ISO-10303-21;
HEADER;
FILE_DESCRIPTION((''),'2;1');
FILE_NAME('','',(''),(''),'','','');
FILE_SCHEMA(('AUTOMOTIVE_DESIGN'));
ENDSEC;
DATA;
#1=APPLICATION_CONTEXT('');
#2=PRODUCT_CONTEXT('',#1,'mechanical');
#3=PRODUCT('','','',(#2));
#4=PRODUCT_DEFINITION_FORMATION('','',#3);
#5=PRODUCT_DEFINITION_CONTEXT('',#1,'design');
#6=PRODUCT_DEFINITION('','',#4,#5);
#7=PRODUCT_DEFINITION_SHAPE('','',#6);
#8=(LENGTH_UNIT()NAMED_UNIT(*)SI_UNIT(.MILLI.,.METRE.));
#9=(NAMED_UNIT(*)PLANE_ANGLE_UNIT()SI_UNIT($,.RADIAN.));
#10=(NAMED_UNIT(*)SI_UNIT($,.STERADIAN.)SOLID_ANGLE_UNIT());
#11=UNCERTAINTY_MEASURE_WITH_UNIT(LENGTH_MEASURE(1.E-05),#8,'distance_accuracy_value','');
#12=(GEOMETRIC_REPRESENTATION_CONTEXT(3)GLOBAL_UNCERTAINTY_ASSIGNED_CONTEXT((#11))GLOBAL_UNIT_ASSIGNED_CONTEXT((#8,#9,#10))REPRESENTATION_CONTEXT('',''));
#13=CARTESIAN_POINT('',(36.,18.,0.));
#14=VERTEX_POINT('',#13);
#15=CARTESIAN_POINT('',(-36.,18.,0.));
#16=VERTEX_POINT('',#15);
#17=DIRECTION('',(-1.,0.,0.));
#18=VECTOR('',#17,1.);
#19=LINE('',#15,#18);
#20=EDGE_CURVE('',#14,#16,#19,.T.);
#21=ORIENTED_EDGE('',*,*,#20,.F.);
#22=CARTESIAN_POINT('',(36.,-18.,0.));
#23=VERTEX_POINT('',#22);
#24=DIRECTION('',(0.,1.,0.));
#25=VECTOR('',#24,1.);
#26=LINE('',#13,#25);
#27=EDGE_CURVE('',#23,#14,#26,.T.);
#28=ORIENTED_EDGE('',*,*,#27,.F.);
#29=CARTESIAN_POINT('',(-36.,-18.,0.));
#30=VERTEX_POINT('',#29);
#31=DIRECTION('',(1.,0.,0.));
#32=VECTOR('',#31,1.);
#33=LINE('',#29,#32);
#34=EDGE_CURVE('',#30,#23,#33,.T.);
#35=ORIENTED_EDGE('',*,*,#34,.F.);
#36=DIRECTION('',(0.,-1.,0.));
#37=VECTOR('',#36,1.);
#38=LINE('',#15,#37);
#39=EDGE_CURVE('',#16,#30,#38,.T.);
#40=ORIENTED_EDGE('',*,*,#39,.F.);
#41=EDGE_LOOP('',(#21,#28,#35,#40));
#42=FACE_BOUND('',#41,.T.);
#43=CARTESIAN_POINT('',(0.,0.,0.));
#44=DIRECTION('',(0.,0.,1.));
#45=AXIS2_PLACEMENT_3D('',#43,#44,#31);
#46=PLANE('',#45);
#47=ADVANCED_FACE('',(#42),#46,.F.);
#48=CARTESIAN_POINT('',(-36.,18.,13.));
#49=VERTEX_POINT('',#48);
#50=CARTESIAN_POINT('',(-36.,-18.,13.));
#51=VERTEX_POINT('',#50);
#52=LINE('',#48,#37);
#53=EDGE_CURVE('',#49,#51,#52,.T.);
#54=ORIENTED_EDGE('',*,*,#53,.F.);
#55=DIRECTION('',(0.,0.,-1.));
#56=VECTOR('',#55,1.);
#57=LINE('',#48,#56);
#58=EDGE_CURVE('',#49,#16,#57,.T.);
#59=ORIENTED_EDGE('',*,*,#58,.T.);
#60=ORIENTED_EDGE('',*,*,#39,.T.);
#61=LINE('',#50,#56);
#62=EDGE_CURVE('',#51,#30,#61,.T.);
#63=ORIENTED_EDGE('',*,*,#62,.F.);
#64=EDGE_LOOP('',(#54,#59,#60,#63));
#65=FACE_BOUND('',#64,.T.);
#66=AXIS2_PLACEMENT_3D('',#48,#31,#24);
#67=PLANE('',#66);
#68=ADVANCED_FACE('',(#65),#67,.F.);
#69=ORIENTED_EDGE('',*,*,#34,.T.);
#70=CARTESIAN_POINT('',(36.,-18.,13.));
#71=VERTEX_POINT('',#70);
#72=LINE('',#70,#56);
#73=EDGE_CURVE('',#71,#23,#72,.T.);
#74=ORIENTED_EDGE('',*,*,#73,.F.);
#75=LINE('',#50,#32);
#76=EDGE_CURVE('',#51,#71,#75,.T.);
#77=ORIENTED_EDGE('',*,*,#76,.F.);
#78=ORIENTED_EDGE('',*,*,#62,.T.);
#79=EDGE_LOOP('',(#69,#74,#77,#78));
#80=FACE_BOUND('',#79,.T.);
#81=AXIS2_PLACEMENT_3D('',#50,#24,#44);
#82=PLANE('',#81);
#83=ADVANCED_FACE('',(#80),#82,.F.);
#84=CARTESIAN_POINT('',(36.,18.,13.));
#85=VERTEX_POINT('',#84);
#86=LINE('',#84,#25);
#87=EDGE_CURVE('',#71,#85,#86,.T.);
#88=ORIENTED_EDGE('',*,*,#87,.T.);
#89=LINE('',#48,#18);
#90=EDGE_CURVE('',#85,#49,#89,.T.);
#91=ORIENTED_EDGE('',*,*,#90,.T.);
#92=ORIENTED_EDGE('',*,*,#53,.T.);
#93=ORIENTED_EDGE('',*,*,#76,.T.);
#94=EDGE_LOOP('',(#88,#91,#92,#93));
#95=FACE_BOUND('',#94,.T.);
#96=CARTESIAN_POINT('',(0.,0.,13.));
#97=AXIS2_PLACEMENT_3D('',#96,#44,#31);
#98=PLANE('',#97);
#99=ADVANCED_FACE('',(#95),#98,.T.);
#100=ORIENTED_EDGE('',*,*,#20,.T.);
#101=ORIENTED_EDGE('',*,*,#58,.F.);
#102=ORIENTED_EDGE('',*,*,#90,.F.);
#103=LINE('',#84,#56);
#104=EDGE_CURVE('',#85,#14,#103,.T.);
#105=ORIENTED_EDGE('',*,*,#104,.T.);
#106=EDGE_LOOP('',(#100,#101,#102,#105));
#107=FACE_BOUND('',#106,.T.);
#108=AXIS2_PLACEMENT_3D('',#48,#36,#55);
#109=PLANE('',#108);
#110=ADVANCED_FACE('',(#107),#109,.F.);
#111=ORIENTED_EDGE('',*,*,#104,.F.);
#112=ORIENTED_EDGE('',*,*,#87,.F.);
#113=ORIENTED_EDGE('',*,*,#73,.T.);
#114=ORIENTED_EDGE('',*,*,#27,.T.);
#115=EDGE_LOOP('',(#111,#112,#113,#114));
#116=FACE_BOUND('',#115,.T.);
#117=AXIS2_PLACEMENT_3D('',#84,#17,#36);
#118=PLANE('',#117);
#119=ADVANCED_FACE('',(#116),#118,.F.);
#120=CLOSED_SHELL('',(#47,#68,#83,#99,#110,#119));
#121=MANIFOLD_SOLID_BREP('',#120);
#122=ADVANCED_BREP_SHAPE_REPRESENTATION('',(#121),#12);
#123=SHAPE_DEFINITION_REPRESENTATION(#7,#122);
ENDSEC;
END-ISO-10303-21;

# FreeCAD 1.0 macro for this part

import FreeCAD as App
import Part
import Sketcher
from FreeCAD import Vector
Q = App.Units.Quantity

doc = App.newDocument("Part")
body = doc.addObject("PartDesign::Body", "Body")

# Sketch on XY plane
sketch1 = body.newObject("Sketcher::SketchObject", "Sketch")
sketch1.AttachmentSupport = (doc.getObject("XY_Plane"), [""])
sketch1.MapMode = "FlatFace"
sketch1.addGeometry(Part.LineSegment(Vector(-36, 18, 0), Vector(-36, -18, 0)), False)
sketch1.addGeometry(Part.LineSegment(Vector(-36, -18, 0), Vector(36, -18, 0)), False)
sketch1.addGeometry(Part.LineSegment(Vector(36, -18, 0), Vector(36, 18, 0)), False)
sketch1.addGeometry(Part.LineSegment(Vector(36, 18, 0), Vector(-36, 18, 0)), False)
sketch1.addConstraint(Sketcher.Constraint("Coincident", 0, 2, 1, 1))
sketch1.addConstraint(Sketcher.Constraint("Coincident", 1, 2, 2, 1))
sketch1.addConstraint(Sketcher.Constraint("Coincident", 2, 2, 3, 1))
sketch1.addConstraint(Sketcher.Constraint("Coincident", 3, 2, 0, 1))
sketch1.addConstraint(Sketcher.Constraint("Vertical", 0))
sketch1.addConstraint(Sketcher.Constraint("Horizontal", 1))
sketch1.addConstraint(Sketcher.Constraint("Vertical", 2))
sketch1.addConstraint(Sketcher.Constraint("Horizontal", 3))
sketch1.addConstraint(Sketcher.Constraint("Symmetric", 0, 2, 2, 2, -1, 1))
sketch1.addConstraint(Sketcher.Constraint("DistanceX", 1, 1, 1, 2, Q("72 mm")))
sketch1.addConstraint(Sketcher.Constraint("DistanceY", 0, 2, 0, 1, Q("36 mm")))
pad1 = body.newObject("PartDesign::Pad", "Pad")
pad1.Profile = sketch1
pad1.Length = 13

doc.recompute()
